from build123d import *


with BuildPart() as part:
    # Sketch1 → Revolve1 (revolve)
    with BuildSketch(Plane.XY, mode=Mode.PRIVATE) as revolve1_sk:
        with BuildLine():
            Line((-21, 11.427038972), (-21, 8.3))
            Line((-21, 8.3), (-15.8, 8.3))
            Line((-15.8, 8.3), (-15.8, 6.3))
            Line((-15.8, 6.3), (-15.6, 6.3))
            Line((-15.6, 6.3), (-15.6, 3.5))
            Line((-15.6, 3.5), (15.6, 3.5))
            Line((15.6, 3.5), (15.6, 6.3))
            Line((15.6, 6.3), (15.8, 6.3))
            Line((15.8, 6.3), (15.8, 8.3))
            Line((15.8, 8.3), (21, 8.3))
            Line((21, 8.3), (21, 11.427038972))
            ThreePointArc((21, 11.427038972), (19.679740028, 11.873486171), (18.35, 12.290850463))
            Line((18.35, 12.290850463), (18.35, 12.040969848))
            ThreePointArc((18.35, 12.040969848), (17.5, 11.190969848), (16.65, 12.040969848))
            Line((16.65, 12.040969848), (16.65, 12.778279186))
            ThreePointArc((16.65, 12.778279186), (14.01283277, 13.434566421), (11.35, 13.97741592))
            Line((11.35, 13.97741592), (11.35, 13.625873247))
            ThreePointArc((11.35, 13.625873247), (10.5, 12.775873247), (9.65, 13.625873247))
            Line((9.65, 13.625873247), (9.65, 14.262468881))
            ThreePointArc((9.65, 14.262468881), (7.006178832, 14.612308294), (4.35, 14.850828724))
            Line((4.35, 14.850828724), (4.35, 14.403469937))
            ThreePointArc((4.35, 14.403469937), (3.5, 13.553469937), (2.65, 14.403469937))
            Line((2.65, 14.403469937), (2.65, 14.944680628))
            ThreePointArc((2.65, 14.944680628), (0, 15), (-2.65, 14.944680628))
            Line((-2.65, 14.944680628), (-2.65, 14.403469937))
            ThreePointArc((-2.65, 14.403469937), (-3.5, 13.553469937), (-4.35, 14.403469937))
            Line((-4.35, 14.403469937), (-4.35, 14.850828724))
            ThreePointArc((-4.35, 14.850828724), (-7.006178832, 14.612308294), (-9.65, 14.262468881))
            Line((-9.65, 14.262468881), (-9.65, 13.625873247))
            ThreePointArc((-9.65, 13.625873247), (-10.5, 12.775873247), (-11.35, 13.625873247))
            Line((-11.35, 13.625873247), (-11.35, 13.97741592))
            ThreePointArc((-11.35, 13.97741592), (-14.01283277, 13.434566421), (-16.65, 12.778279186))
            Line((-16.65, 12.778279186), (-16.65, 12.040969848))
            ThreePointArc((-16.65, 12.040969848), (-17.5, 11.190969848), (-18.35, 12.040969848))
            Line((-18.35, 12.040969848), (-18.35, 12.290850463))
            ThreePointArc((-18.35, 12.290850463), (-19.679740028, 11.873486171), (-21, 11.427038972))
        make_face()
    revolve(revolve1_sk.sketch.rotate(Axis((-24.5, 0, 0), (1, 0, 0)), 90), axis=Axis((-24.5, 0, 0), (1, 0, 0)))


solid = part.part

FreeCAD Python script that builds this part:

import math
import FreeCAD as App
import Part
import Sketcher

V = App.Vector
Q = App.Units.Quantity

doc = App.newDocument("Part")
params = doc.addObject("Spreadsheet::Sheet", "Params")
for row, (alias, value) in enumerate([
    ("sketch1_radius", "63.499999 mm"),
    ("sketch1_height", "2 mm"),
    ("sketch1_radius2", "0.85 mm"),
    ("sketch1_width", "5.2 mm"),
    ("sketch1_width2", "0.2 mm"),
    ("revolution_angle", "360 deg"),
], start=1):
    params.set(f"A{row}", alias)
    params.set(f"B{row}", "=" + value)
    params.setAlias(f"B{row}", alias)

body = doc.addObject("PartDesign::Body", "Body")

# Sketch on XY plane
sketch1 = doc.addObject("Sketcher::SketchObject", "Sketch")
body.addObject(sketch1)
sketch1.AttachmentSupport = (doc.XY_Plane, [""])
sketch1.MapMode = "FlatFace"
sketch1.addGeometry([
    Part.LineSegment(V(-21, 11.43, 0), V(-21, 8.3, 0)),  # 0
    Part.LineSegment(V(-21, 8.3, 0), V(-15.8, 8.3, 0)),  # 1
    Part.LineSegment(V(-15.8, 8.3, 0), V(-15.8, 6.3, 0)),  # 2
    Part.LineSegment(V(-15.8, 6.3, 0), V(-15.6, 6.3, 0)),  # 3
    Part.LineSegment(V(-15.6, 6.3, 0), V(-15.6, 3.5, 0)),  # 4
    Part.LineSegment(V(-15.6, 3.5, 0), V(15.6, 3.5, 0)),  # 5
    Part.LineSegment(V(15.6, 3.5, 0), V(15.6, 6.3, 0)),  # 6
    Part.LineSegment(V(15.6, 6.3, 0), V(15.8, 6.3, 0)),  # 7
    Part.LineSegment(V(15.8, 6.3, 0), V(15.8, 8.3, 0)),  # 8
    Part.LineSegment(V(15.8, 8.3, 0), V(21, 8.3, 0)),  # 9
    Part.LineSegment(V(21, 8.3, 0), V(21, 11.43, 0)),  # 10
    Part.ArcOfCircle(Part.Circle(V(0, -48.5, 0), V(0, 0, 1), 63.5), math.radians(70.69), math.radians(73.2)),  # 11
    Part.LineSegment(V(18.35, 12.29, 0), V(18.35, 12.04, 0)),  # 12
    Part.ArcOfCircle(Part.Circle(V(17.5, 12.04, 0), V(0, 0, 1), 0.85), math.radians(180), math.radians(360)),  # 13
    Part.LineSegment(V(16.65, 12.04, 0), V(16.65, 12.78, 0)),  # 14
    Part.ArcOfCircle(Part.Circle(V(0, -48.5, 0), V(0, 0, 1), 63.5), math.radians(74.8), math.radians(79.7)),  # 15
    Part.LineSegment(V(11.35, 13.98, 0), V(11.35, 13.63, 0)),  # 16
    Part.ArcOfCircle(Part.Circle(V(10.5, 13.63, 0), V(0, 0, 1), 0.85), math.radians(180), math.radians(360)),  # 17
    Part.LineSegment(V(9.65, 13.63, 0), V(9.65, 14.26, 0)),  # 18
    Part.ArcOfCircle(Part.Circle(V(0, -48.5, 0), V(0, 0, 1), 63.5), math.radians(81.26), math.radians(86.07)),  # 19
    Part.LineSegment(V(4.35, 14.85, 0), V(4.35, 14.4, 0)),  # 20
    Part.ArcOfCircle(Part.Circle(V(3.5, 14.4, 0), V(0, 0, 1), 0.85), math.radians(180), math.radians(360)),  # 21
    Part.LineSegment(V(2.65, 14.4, 0), V(2.65, 14.94, 0)),  # 22
    Part.ArcOfCircle(Part.Circle(V(0, -48.5, 0), V(0, 0, 1), 63.5), math.radians(87.61), math.radians(92.39)),  # 23
    Part.LineSegment(V(-2.65, 14.94, 0), V(-2.65, 14.4, 0)),  # 24
    Part.ArcOfCircle(Part.Circle(V(-3.5, 14.4, 0), V(0, 0, 1), 0.85), math.radians(180), math.radians(360)),  # 25
    Part.LineSegment(V(-4.35, 14.4, 0), V(-4.35, 14.85, 0)),  # 26
    Part.ArcOfCircle(Part.Circle(V(0, -48.5, 0), V(0, 0, 1), 63.5), math.radians(93.93), math.radians(98.74)),  # 27
    Part.LineSegment(V(-9.65, 14.26, 0), V(-9.65, 13.63, 0)),  # 28
    Part.ArcOfCircle(Part.Circle(V(-10.5, 13.63, 0), V(0, 0, 1), 0.85), math.radians(180), math.radians(360)),  # 29
    Part.LineSegment(V(-11.35, 13.63, 0), V(-11.35, 13.98, 0)),  # 30
    Part.ArcOfCircle(Part.Circle(V(0, -48.5, 0), V(0, 0, 1), 63.5), math.radians(100.3), math.radians(105.2)),  # 31
    Part.LineSegment(V(-16.65, 12.78, 0), V(-16.65, 12.04, 0)),  # 32
    Part.ArcOfCircle(Part.Circle(V(-17.5, 12.04, 0), V(0, 0, 1), 0.85), math.radians(180), math.radians(360)),  # 33
    Part.LineSegment(V(-18.35, 12.04, 0), V(-18.35, 12.29, 0)),  # 34
    Part.ArcOfCircle(Part.Circle(V(0, -48.5, 0), V(0, 0, 1), 63.5), math.radians(106.8), math.radians(109.31)),  # 35
], False)
sketch1.addConstraint([
    Sketcher.Constraint("Coincident", 0, 2, 1, 1),
    Sketcher.Constraint("Coincident", 1, 2, 2, 1),
    Sketcher.Constraint("Coincident", 2, 2, 3, 1),
    Sketcher.Constraint("Coincident", 3, 2, 4, 1),
    Sketcher.Constraint("Coincident", 4, 2, 5, 1),
    Sketcher.Constraint("Coincident", 5, 2, 6, 1),
    Sketcher.Constraint("Coincident", 6, 2, 7, 1),
    Sketcher.Constraint("Coincident", 7, 2, 8, 1),
    Sketcher.Constraint("Coincident", 8, 2, 9, 1),
    Sketcher.Constraint("Coincident", 9, 2, 10, 1),
    Sketcher.Constraint("Coincident", 10, 2, 11, 1),
    Sketcher.Constraint("Coincident", 11, 2, 12, 1),
    Sketcher.Constraint("Tangent", 12, 2, 13, 2),
    Sketcher.Constraint("Tangent", 13, 1, 14, 1),
    Sketcher.Constraint("Coincident", 14, 2, 15, 1),
    Sketcher.Constraint("Coincident", 15, 2, 16, 1),
    Sketcher.Constraint("Tangent", 16, 2, 17, 2),
    Sketcher.Constraint("Tangent", 17, 1, 18, 1),
    Sketcher.Constraint("Coincident", 18, 2, 19, 1),
    Sketcher.Constraint("Coincident", 19, 2, 20, 1),
    Sketcher.Constraint("Tangent", 20, 2, 21, 2),
    Sketcher.Constraint("Tangent", 21, 1, 22, 1),
    Sketcher.Constraint("Coincident", 22, 2, 23, 1),
    Sketcher.Constraint("Coincident", 23, 2, 24, 1),
    Sketcher.Constraint("Tangent", 24, 2, 25, 2),
    Sketcher.Constraint("Tangent", 25, 1, 26, 1),
    Sketcher.Constraint("Coincident", 26, 2, 27, 1),
    Sketcher.Constraint("Coincident", 27, 2, 28, 1),
    Sketcher.Constraint("Tangent", 28, 2, 29, 2),
    Sketcher.Constraint("Tangent", 29, 1, 30, 1),
    Sketcher.Constraint("Coincident", 30, 2, 31, 1),
    Sketcher.Constraint("Coincident", 31, 2, 32, 1),
    Sketcher.Constraint("Tangent", 32, 2, 33, 2),
    Sketcher.Constraint("Tangent", 33, 1, 34, 1),
    Sketcher.Constraint("Coincident", 34, 2, 35, 1),
    Sketcher.Constraint("Coincident", 35, 2, 0, 1),
    Sketcher.Constraint("Vertical", 0),
    Sketcher.Constraint("Horizontal", 1),
    Sketcher.Constraint("Vertical", 2),
    Sketcher.Constraint("Horizontal", 3),
    Sketcher.Constraint("Vertical", 4),
    Sketcher.Constraint("Horizontal", 5),
    Sketcher.Constraint("Vertical", 6),
    Sketcher.Constraint("Horizontal", 7),
    Sketcher.Constraint("Vertical", 8),
    Sketcher.Constraint("Horizontal", 9),
    Sketcher.Constraint("Vertical", 10),
    Sketcher.Constraint("Vertical", 12),
    Sketcher.Constraint("Vertical", 14),
    Sketcher.Constraint("Vertical", 16),
    Sketcher.Constraint("Vertical", 18),
    Sketcher.Constraint("Vertical", 20),
    Sketcher.Constraint("Vertical", 22),
    Sketcher.Constraint("Vertical", 24),
    Sketcher.Constraint("Vertical", 26),
    Sketcher.Constraint("Vertical", 28),
    Sketcher.Constraint("Vertical", 30),
    Sketcher.Constraint("Vertical", 32),
    Sketcher.Constraint("Vertical", 34),
    Sketcher.Constraint("Coincident", 15, 3, 11, 3),
    Sketcher.Constraint("Coincident", 19, 3, 11, 3),
    Sketcher.Constraint("Coincident", 23, 3, 11, 3),
    Sketcher.Constraint("Coincident", 27, 3, 11, 3),
    Sketcher.Constraint("Coincident", 31, 3, 11, 3),
    Sketcher.Constraint("Coincident", 35, 3, 11, 3),
    Sketcher.Constraint("Equal", 11, 15),
    Sketcher.Constraint("Equal", 13, 17),
    Sketcher.Constraint("Equal", 15, 19),
    Sketcher.Constraint("Equal", 17, 21),
    Sketcher.Constraint("Equal", 19, 23),
    Sketcher.Constraint("Equal", 21, 25),
    Sketcher.Constraint("Equal", 23, 27),
    Sketcher.Constraint("Equal", 25, 29),
    Sketcher.Constraint("Equal", 27, 31),
    Sketcher.Constraint("Equal", 29, 33),
    Sketcher.Constraint("Equal", 31, 35),
    Sketcher.Constraint("Symmetric", 21, 3, 25, 3, -2),
    Sketcher.Constraint("Symmetric", 17, 3, 29, 3, -2),
    Sketcher.Constraint("Symmetric", 13, 3, 33, 3, -2),
    Sketcher.Constraint("Symmetric", 3, 2, 6, 2, -2),
    Sketcher.Constraint("Symmetric", 1, 2, 8, 2, -2),
    Sketcher.Constraint("Symmetric", 10, 2, 35, 2, -2),
    Sketcher.Constraint("Radius", 11, Q("63.499999 mm")),
    Sketcher.Constraint("DistanceY", 2, 2, 2, 1, Q("2 mm")),
    Sketcher.Constraint("Radius", 13, Q("0.85 mm")),
    Sketcher.Constraint("DistanceX", 1, 1, 1, 2, Q("5.2 mm")),
    Sketcher.Constraint("DistanceX", 3, 1, 3, 2, Q("0.2 mm")),
    Sketcher.Constraint("DistanceX", 5, 1, 5, 2, Q("31.2 mm")),
    Sketcher.Constraint("DistanceY", 4, 2, 4, 1, Q("2.8 mm")),
    Sketcher.Constraint("DistanceX", 17, 3, 13, 3, Q("7 mm")),
    Sketcher.Constraint("DistanceX", 21, 3, 17, 3, Q("7 mm")),
    Sketcher.Constraint("DistanceX", 25, 3, 21, 3, Q("7 mm")),
    Sketcher.Constraint("DistanceY", 11, 3, -1, 1, Q("48.499999 mm")),
    Sketcher.Constraint("DistanceY", -1, 1, 0, 2, Q("8.3 mm")),
    Sketcher.Constraint("DistanceY", 18, 2, 21, 3, Q("0.141001 mm")),
    Sketcher.Constraint("DistanceY", 12, 2, 12, 1, Q("0.249881 mm")),
    Sketcher.Constraint("DistanceY", 16, 2, 16, 1, Q("0.351543 mm")),
])
sketch1.setExpression("Constraints[82]", "Params.sketch1_radius")
sketch1.setExpression("Constraints[83]", "Params.sketch1_height")
sketch1.setExpression("Constraints[84]", "Params.sketch1_radius2")
sketch1.setExpression("Constraints[85]", "Params.sketch1_width")
sketch1.setExpression("Constraints[86]", "Params.sketch1_width2")
revolution = doc.addObject("PartDesign::Revolution", "Revolution")
body.addObject(revolution)
revolution.Profile = sketch1
revolution.ReferenceAxis = (sketch1, ["H_Axis"])
revolution.setExpression("Angle", "Params.revolution_angle")

doc.recompute()
